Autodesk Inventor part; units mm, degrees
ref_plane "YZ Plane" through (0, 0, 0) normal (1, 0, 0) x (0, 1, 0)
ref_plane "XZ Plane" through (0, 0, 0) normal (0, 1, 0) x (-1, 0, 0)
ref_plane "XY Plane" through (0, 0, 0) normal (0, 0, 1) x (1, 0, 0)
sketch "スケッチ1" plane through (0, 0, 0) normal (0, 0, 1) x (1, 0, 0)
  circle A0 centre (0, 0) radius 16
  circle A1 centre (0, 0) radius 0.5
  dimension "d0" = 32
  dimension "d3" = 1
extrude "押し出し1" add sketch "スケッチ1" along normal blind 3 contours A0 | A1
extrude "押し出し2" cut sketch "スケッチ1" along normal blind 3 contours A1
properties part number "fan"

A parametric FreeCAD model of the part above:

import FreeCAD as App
import Part
import Sketcher
Q = App.Units.Quantity

doc = App.newDocument("Part")
params = doc.addObject("Spreadsheet::Sheet", "Params")
for row, (alias, value) in enumerate([
    ("sketch1_diameter", "32 mm"),
    ("pad1_length", "3 mm"),
    ("sketch2_diameter", "1 mm"),
    ("pocket1_length", "3 mm"),
], start=1):
    params.set(f"A{row}", alias)
    params.set(f"B{row}", "=" + value)
    params.setAlias(f"B{row}", alias)

body = doc.addObject("PartDesign::Body", "Body")

sketch1 = body.newObject("Sketcher::SketchObject", "Sketch")
sketch1.AttachmentSupport = (doc.getObject("XY_Plane"), [""])
sketch1.MapMode = "FlatFace"
sketch1.addGeometry(Part.Circle(App.Vector(0, 0, 0), App.Vector(0, 0, 1), 16), False)
sketch1.addConstraint([
    Sketcher.Constraint("Coincident", 0, 3, -1, 1),
    Sketcher.Constraint("Diameter", 0, Q("32 mm")),
])
sketch1.setExpression("Constraints[1]", "Params.sketch1_diameter")
pad1 = body.newObject("PartDesign::Pad", "Pad")
pad1.Profile = sketch1
pad1.setExpression("Length", "Params.pad1_length")

sketch2 = body.newObject("Sketcher::SketchObject", "Sketch001")
sketch2.AttachmentSupport = (doc.getObject("XY_Plane"), [""])
sketch2.MapMode = "FlatFace"
sketch2.addGeometry(Part.Circle(App.Vector(0, 0, 0), App.Vector(0, 0, 1), 0.5), False)
sketch2.addConstraint([
    Sketcher.Constraint("Coincident", 0, 3, -1, 1),
    Sketcher.Constraint("Diameter", 0, Q("1 mm")),
])
sketch2.setExpression("Constraints[1]", "Params.sketch2_diameter")
pocket1 = body.newObject("PartDesign::Pocket", "Pocket")
pocket1.Profile = sketch2
pocket1.setExpression("Length", "Params.pocket1_length")
pocket1.Reversed = True

doc.recompute()
